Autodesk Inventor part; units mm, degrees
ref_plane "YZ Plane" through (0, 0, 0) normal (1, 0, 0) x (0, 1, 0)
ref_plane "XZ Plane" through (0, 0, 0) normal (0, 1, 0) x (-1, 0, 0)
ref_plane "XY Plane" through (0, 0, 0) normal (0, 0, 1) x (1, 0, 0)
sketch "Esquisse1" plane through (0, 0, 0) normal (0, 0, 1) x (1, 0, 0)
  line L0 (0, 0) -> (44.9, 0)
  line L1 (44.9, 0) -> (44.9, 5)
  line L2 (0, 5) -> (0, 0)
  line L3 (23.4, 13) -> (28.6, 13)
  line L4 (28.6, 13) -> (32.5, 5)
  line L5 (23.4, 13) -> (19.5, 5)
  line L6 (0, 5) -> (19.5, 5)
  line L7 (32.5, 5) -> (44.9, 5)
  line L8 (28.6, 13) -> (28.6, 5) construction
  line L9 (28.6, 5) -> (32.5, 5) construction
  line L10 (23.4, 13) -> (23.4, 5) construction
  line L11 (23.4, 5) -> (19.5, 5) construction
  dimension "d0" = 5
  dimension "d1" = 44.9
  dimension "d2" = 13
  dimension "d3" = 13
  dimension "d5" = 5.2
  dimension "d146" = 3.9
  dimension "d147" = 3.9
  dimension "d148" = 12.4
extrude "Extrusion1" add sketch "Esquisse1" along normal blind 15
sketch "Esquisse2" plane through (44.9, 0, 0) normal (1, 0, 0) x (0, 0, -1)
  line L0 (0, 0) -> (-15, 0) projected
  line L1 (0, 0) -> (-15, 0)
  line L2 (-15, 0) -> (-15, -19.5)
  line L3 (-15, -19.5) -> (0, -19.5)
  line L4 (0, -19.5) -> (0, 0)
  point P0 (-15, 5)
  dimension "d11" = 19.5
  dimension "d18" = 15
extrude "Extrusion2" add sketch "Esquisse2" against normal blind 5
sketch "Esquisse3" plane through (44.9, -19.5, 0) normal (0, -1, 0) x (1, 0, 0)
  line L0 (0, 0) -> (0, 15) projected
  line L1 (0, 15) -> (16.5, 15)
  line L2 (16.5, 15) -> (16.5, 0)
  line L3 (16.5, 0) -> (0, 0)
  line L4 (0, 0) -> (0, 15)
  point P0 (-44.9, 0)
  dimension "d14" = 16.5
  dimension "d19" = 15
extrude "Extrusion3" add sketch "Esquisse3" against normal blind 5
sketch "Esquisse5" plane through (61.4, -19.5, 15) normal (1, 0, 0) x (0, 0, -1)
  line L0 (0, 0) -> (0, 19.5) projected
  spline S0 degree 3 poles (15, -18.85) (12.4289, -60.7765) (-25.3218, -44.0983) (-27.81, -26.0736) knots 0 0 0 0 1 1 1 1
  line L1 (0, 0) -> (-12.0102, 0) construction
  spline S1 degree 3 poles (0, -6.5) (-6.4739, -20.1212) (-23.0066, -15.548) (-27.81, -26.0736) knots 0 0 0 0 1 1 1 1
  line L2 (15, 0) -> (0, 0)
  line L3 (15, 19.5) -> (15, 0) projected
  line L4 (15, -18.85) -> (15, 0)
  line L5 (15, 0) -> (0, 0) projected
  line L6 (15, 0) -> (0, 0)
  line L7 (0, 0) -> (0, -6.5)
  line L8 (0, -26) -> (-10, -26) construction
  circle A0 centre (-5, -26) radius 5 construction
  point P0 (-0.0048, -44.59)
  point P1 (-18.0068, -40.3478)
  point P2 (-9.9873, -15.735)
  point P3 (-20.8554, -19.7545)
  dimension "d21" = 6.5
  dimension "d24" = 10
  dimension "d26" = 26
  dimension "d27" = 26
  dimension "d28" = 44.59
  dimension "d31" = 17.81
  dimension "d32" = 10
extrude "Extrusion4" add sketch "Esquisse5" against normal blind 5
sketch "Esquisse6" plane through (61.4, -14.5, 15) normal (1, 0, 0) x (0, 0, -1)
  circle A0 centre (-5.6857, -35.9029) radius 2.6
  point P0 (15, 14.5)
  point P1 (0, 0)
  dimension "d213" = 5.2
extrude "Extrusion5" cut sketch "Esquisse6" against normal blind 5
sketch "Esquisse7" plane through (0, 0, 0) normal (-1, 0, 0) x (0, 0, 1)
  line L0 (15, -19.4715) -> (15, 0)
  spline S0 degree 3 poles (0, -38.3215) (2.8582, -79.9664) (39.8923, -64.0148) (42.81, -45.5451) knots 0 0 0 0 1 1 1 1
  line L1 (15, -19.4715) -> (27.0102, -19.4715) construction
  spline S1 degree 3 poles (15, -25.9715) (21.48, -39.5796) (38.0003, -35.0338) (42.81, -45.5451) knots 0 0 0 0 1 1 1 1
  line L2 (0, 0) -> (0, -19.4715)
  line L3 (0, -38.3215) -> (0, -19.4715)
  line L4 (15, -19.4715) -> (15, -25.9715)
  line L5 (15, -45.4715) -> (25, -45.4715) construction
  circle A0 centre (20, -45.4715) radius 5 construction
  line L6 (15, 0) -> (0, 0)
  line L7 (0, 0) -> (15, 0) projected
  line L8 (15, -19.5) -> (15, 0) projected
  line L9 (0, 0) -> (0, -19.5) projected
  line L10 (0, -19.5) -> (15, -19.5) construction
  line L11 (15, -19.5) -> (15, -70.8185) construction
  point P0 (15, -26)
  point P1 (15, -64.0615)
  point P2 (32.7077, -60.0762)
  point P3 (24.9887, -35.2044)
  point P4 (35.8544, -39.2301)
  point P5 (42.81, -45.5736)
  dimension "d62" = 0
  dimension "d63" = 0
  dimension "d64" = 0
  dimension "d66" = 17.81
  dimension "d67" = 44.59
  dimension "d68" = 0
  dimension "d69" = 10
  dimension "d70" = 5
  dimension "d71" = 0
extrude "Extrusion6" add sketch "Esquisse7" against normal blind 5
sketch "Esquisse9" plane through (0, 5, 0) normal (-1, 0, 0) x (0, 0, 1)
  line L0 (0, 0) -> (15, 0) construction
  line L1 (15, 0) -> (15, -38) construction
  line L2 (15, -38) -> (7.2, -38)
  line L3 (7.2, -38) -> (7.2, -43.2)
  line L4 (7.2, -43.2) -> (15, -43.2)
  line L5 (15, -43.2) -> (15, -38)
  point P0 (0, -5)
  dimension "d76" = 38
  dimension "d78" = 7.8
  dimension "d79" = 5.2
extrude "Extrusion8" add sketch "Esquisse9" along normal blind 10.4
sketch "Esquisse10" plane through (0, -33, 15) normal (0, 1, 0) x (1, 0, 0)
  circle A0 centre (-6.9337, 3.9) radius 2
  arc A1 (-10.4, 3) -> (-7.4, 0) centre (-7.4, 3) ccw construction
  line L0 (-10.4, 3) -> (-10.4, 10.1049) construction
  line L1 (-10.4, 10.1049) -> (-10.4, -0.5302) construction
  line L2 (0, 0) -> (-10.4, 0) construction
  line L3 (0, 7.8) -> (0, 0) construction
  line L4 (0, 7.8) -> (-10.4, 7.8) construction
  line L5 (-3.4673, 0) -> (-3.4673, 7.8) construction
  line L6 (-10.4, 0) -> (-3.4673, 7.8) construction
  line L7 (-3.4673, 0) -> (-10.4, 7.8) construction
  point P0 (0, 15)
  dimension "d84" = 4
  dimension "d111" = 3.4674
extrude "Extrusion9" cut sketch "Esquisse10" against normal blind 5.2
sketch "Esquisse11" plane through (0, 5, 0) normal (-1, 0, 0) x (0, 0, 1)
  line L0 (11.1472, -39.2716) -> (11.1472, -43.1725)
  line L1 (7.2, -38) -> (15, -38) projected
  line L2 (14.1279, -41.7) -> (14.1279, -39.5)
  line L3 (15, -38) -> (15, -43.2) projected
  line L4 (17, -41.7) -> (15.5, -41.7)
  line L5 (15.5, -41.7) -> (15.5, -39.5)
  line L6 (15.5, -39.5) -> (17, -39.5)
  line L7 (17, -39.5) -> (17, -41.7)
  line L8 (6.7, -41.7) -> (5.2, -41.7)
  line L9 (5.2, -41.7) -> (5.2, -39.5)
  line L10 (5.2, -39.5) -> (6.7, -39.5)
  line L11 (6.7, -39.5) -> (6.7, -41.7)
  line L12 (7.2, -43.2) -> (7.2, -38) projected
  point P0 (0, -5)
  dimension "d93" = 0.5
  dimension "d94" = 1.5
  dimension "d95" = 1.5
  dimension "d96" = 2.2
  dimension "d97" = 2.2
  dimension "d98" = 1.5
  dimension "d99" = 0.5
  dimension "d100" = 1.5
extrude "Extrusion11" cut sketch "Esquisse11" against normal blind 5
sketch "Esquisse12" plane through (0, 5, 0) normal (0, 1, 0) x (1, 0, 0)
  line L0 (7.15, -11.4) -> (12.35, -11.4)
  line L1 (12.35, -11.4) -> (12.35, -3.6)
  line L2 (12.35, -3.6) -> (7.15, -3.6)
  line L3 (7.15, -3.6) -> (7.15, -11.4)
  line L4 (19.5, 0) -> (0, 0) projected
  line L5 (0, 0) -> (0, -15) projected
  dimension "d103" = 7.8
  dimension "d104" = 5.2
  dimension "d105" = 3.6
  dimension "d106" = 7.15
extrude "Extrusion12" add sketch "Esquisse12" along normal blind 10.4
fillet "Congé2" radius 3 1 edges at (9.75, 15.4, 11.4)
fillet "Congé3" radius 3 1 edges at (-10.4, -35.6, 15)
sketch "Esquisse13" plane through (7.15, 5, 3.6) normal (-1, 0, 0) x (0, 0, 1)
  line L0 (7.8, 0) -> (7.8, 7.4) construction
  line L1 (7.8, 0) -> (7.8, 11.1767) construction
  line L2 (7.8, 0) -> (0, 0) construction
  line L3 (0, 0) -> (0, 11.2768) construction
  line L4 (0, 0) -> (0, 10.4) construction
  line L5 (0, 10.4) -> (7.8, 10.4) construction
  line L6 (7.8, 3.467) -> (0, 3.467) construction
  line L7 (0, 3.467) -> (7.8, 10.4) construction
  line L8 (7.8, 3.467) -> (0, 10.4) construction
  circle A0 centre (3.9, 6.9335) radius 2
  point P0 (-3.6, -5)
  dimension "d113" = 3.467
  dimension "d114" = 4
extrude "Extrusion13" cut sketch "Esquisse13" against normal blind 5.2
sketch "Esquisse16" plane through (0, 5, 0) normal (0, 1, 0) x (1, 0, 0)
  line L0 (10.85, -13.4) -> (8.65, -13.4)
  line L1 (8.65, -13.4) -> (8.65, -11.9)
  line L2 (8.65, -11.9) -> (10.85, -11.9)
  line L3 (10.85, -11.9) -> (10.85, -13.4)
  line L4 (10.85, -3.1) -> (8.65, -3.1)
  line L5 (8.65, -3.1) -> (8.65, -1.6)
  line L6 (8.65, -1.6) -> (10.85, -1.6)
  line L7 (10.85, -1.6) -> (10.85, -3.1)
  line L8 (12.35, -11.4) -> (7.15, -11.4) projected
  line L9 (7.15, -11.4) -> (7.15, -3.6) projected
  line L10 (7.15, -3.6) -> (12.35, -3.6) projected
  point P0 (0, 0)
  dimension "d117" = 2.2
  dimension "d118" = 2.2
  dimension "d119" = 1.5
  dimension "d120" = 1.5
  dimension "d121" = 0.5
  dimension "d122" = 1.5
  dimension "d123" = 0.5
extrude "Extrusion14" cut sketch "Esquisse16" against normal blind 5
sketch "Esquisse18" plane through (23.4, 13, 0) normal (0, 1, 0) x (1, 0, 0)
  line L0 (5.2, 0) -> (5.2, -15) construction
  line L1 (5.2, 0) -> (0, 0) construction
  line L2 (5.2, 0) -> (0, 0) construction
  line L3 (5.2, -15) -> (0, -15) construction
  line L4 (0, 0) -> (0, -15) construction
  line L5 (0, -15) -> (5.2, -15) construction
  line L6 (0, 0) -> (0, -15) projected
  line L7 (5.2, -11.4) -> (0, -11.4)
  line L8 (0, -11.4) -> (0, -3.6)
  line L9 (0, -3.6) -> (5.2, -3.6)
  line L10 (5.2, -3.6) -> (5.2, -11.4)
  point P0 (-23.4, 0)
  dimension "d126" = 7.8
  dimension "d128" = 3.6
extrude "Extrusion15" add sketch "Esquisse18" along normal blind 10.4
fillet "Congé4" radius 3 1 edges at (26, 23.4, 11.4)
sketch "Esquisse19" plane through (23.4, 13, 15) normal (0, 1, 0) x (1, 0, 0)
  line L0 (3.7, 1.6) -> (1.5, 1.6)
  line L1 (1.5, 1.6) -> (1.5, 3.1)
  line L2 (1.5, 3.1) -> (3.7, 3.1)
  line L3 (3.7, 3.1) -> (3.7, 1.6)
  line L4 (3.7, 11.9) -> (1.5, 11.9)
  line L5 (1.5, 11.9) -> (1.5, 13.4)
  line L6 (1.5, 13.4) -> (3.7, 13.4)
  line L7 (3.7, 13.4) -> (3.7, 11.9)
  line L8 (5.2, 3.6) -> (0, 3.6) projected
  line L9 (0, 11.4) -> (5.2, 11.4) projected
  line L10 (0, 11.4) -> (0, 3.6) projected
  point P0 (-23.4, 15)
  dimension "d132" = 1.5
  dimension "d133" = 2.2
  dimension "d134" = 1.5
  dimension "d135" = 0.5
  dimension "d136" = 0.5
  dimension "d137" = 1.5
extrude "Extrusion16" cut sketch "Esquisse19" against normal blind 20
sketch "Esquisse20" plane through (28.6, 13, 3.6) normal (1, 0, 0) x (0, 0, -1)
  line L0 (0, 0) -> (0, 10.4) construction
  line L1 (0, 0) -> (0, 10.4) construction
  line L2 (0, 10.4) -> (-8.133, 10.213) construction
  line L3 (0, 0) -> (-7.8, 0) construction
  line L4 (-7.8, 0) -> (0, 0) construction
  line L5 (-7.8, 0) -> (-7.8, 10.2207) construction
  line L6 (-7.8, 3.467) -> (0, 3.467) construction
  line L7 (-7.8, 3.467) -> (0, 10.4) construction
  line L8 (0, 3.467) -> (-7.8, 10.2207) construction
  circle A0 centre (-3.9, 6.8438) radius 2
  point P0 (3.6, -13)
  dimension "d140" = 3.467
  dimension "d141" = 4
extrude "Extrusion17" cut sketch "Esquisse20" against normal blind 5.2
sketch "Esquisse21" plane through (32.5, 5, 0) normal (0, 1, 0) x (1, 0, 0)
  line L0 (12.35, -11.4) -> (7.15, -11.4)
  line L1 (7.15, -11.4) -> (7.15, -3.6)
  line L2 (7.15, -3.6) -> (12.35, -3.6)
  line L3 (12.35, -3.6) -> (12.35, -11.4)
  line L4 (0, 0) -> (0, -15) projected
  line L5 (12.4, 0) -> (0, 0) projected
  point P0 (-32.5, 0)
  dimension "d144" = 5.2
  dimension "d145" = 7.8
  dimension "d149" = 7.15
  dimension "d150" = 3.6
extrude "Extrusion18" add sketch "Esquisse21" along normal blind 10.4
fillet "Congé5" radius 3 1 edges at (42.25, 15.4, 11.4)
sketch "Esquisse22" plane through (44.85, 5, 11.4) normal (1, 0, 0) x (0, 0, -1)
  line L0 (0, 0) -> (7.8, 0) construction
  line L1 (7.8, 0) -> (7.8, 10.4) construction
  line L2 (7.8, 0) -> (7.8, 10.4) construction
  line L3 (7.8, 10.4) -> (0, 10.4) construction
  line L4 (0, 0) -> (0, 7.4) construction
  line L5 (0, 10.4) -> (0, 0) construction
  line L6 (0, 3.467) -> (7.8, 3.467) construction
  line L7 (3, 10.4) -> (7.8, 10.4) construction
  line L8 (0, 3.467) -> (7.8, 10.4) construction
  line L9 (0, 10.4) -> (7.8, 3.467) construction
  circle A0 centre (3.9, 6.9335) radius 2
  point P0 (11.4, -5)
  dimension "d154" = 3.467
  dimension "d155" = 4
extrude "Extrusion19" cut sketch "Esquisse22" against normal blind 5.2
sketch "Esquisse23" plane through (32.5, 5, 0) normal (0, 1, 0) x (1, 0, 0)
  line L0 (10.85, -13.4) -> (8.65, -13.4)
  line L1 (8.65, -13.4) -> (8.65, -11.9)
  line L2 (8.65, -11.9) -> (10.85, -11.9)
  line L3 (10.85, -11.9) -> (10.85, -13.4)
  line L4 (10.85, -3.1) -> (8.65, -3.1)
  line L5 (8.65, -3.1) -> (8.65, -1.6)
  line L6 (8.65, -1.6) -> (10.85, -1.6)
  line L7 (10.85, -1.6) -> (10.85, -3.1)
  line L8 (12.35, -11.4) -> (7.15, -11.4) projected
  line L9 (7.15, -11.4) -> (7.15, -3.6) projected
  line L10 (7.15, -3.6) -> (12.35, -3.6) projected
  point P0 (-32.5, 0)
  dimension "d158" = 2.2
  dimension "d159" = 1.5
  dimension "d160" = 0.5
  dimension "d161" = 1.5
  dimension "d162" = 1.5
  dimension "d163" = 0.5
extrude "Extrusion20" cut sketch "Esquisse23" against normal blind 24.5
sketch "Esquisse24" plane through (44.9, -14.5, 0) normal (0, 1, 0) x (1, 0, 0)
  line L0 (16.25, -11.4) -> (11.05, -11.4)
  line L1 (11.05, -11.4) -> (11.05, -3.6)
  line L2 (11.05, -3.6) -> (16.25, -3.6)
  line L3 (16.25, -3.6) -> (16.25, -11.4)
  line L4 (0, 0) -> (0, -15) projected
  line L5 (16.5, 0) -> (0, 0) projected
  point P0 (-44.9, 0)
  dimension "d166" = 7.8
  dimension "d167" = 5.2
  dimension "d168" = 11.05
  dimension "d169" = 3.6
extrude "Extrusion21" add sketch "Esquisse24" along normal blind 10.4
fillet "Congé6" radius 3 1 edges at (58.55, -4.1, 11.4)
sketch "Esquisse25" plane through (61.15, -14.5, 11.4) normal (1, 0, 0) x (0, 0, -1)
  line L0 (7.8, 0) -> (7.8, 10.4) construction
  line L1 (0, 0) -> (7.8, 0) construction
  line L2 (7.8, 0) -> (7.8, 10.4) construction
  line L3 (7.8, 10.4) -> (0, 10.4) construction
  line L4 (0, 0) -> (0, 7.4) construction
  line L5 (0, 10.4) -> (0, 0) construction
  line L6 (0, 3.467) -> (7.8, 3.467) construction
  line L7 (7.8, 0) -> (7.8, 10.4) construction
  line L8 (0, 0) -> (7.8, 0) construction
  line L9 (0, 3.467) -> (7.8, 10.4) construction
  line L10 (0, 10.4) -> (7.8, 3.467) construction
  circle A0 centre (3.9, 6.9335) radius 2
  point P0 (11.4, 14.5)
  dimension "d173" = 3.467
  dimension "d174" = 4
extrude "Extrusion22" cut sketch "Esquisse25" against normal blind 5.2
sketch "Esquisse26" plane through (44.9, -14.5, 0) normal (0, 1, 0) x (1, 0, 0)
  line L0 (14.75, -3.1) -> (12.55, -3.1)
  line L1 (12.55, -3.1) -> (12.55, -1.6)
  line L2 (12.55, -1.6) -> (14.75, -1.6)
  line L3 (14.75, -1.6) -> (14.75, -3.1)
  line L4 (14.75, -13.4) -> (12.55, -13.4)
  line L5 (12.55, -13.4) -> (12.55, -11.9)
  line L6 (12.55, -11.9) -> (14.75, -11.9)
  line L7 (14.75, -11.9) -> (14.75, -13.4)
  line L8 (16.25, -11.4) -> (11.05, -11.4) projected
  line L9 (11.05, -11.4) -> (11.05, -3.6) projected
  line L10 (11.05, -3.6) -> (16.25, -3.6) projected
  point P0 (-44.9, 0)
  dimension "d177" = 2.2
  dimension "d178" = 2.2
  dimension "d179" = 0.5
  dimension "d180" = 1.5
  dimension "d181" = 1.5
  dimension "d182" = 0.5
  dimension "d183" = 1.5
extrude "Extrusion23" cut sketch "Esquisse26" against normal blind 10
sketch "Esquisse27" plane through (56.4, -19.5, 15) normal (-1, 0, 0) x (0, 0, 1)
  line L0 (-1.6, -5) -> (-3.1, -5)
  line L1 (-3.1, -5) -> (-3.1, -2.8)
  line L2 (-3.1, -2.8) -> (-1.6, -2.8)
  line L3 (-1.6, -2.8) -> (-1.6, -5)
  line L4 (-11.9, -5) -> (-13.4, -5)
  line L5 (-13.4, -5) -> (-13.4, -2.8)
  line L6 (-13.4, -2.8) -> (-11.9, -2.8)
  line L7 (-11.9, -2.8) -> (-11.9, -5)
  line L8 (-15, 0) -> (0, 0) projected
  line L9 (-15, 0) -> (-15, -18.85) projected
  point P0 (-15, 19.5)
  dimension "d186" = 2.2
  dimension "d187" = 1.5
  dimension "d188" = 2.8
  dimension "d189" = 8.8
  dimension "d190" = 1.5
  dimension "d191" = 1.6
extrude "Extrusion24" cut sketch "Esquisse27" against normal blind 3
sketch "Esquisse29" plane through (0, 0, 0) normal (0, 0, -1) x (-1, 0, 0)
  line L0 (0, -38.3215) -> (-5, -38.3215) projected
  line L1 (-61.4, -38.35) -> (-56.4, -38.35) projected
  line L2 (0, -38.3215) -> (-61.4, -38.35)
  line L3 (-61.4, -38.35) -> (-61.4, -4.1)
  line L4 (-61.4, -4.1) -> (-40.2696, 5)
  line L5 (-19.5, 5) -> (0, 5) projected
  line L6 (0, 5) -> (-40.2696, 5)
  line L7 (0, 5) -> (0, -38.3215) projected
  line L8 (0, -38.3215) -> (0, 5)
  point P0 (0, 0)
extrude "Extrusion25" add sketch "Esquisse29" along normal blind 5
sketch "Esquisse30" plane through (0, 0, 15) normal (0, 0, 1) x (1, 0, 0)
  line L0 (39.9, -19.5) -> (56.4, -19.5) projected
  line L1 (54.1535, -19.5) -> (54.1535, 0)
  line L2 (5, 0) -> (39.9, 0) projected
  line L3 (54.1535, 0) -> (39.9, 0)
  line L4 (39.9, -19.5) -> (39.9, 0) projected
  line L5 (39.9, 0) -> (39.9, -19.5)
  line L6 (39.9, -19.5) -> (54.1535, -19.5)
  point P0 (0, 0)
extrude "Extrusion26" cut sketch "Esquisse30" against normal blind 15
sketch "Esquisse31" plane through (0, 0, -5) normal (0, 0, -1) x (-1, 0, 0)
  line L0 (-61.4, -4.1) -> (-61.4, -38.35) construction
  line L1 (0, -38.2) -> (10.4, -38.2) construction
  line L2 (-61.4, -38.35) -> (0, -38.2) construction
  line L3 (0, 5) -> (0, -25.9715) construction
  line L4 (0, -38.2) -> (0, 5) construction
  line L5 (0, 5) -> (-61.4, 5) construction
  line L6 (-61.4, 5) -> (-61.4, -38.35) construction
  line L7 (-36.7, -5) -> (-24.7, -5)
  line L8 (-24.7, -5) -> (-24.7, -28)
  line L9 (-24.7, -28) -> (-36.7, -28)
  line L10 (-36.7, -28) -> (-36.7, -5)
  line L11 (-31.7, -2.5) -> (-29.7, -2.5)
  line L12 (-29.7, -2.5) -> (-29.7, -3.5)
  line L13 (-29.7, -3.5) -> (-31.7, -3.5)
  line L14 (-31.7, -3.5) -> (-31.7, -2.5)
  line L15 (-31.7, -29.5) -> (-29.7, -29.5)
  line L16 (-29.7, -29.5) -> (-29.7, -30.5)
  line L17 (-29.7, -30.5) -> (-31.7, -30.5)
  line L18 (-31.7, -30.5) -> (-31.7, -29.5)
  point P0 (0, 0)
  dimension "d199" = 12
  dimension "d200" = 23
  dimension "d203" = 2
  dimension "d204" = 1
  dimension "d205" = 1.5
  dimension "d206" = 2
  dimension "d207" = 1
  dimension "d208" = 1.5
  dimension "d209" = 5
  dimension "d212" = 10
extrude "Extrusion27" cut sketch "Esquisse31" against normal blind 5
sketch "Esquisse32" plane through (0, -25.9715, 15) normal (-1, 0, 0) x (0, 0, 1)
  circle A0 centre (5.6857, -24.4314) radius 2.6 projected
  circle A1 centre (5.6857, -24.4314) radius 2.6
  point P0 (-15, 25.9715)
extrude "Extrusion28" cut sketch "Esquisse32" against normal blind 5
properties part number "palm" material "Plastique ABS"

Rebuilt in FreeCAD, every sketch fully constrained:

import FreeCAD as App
import Part
import Sketcher
Q = App.Units.Quantity


def edges_at(feature, points):
    """Names of the edges that pass closest to the given points."""
    edges = feature.Shape.Edges
    near = lambda p: min(range(len(edges)), key=lambda i: edges[i].distToShape(Part.Vertex(*p))[0])
    return sorted({f"Edge{near(p) + 1}" for p in points})


def add_polygon(sketch, points):
    """Adds a closed chain of lines whose ends are joined by coincident constraints."""
    first, n = sketch.GeometryCount, len(points)
    for a, b in zip(points, points[1:] + points[:1]):
        sketch.addGeometry(Part.LineSegment(App.Vector(*a, 0), App.Vector(*b, 0)), False)
    for i in range(n):
        sketch.addConstraint(Sketcher.Constraint("Coincident", first + i, 2, first + (i + 1) % n, 1))

doc = App.newDocument("Part")
body = doc.addObject("PartDesign::Body", "Body")

# Sketch on XY plane
sketch1 = doc.addObject("Sketcher::SketchObject", "Sketch")
body.addObject(sketch1)
sketch1.AttachmentSupport = (doc.XY_Plane, [""])
sketch1.MapMode = "FlatFace"
add_polygon(sketch1, [(0, 5), (0, 0), (44.9, 0), (44.9, 5), (32.5, 5), (28.6, 13), (23.4, 13), (19.5, 5)])  # lines 0-7
sketch1.addConstraint([
    Sketcher.Constraint("Vertical", 0),
    Sketcher.Constraint("Horizontal", 1),
    Sketcher.Constraint("Vertical", 2),
    Sketcher.Constraint("Horizontal", 3),
    Sketcher.Constraint("Horizontal", 5),
    Sketcher.Constraint("Horizontal", 7),
    Sketcher.Constraint("Coincident", 0, 2, -1, 1),
    Sketcher.Constraint("Horizontal", 3, 2, 6, 2),
    Sketcher.Constraint("Equal", 4, 6),
    Sketcher.Constraint("DistanceY", 0, 2, 0, 1, 5.0),
    Sketcher.Constraint("DistanceX", 1, 1, 1, 2, 44.9),
    Sketcher.Constraint("DistanceX", 3, 2, 3, 1, 12.4),
    Sketcher.Constraint("DistanceX", 5, 2, 5, 1, 5.2),
    Sketcher.Constraint("DistanceY", -1, 1, 4, 2, 13.0),
    Sketcher.Constraint("DistanceX", 6, 2, 3, 2, 13.0),
])
pad1 = doc.addObject("PartDesign::Pad", "Pad")
body.addObject(pad1)
pad1.Profile = sketch1
pad1.Length = 15

# Sketch on YZ plane
sketch2 = doc.addObject("Sketcher::SketchObject", "Sketch001")
body.addObject(sketch2)
sketch2.AttachmentSupport = (doc.YZ_Plane, [""])
sketch2.MapMode = "FlatFace"
sketch2.AttachmentOffset = App.Placement(App.Vector(0, 0, 44.9), App.Rotation())
add_polygon(sketch2, [(-19.5, 0), (0, 0), (0, 15), (-19.5, 15)])  # lines 0-3
sketch2.addConstraint([
    Sketcher.Constraint("Horizontal", 0),
    Sketcher.Constraint("Vertical", 1),
    Sketcher.Constraint("Horizontal", 2),
    Sketcher.Constraint("Vertical", 3),
    Sketcher.Constraint("Coincident", 0, 2, -1, 1),
    Sketcher.Constraint("DistanceY", 1, 1, 1, 2, 15.0),
    Sketcher.Constraint("DistanceX", 0, 1, 0, 2, 19.5),
])
pad2 = doc.addObject("PartDesign::Pad", "Pad001")
body.addObject(pad2)
pad2.Profile = sketch2
pad2.Length = 5
pad2.Reversed = True

# Sketch on XZ plane
sketch3 = doc.addObject("Sketcher::SketchObject", "Sketch002")
body.addObject(sketch3)
sketch3.AttachmentSupport = (doc.XZ_Plane, [""])
sketch3.MapMode = "FlatFace"
sketch3.AttachmentOffset = App.Placement(App.Vector(0, 0, 19.5), App.Rotation())
add_polygon(sketch3, [(44.9, 15), (44.9, 0), (61.4, 0), (61.4, 15)])  # lines 0-3
sketch3.addConstraint([
    Sketcher.Constraint("Vertical", 0),
    Sketcher.Constraint("Horizontal", 1),
    Sketcher.Constraint("Vertical", 2),
    Sketcher.Constraint("Horizontal", 3),
    Sketcher.Constraint("PointOnObject", 0, 2, -1),
    Sketcher.Constraint("DistanceY", 0, 2, 0, 1, 15.0),
    Sketcher.Constraint("DistanceX", 1, 1, 1, 2, 16.5),
    Sketcher.Constraint("DistanceX", -1, 1, 0, 2, 44.9),
])
pad3 = doc.addObject("PartDesign::Pad", "Pad002")
body.addObject(pad3)
pad3.Profile = sketch3
pad3.Length = 5
pad3.Reversed = True

# Sketch on YZ plane
sketch4 = doc.addObject("Sketcher::SketchObject", "Sketch003")
body.addObject(sketch4)
sketch4.AttachmentSupport = (doc.YZ_Plane, [""])
sketch4.MapMode = "FlatFace"
sketch4.AttachmentOffset = App.Placement(App.Vector(0, 0, 61.4), App.Rotation())
sketch4.addGeometry([
    Part.BSplineCurve([App.Vector(-38.35, 0, 0), App.Vector(-80.2765, 2.5711, 0), App.Vector(-63.5983, 40.3218, 0), App.Vector(-45.5736, 42.81, 0)], [4, 4], [0, 1], False, 3, [1, 1, 1, 1], False),  # 0
    Part.LineSegment(App.Vector(-38.35, 0, 0), App.Vector(-19.5, 0, 0)),  # 1
    Part.LineSegment(App.Vector(-19.5, 0, 0), App.Vector(-19.5, 15, 0)),  # 2
    Part.LineSegment(App.Vector(-19.5, 15, 0), App.Vector(-26, 15, 0)),  # 3
    Part.BSplineCurve([App.Vector(-26, 15, 0), App.Vector(-39.6212, 21.4739, 0), App.Vector(-35.048, 38.0066, 0), App.Vector(-45.5736, 42.81, 0)], [4, 4], [0, 1], False, 3, [1, 1, 1, 1], False),  # 4
], False)
sketch4.addConstraint([
    Sketcher.Constraint("Block", 0),
    Sketcher.Constraint("Block", 4),
    Sketcher.Constraint("Coincident", 0, 1, 1, 1),
    Sketcher.Constraint("Coincident", 1, 2, 2, 1),
    Sketcher.Constraint("Coincident", 2, 2, 3, 1),
    Sketcher.Constraint("Coincident", 3, 2, 4, 1),
    Sketcher.Constraint("Horizontal", 1),
    Sketcher.Constraint("Vertical", 2),
    Sketcher.Constraint("Horizontal", 3),
    Sketcher.Constraint("DistanceX", 3, 2, 3, 1, 6.5),
])
pad4 = doc.addObject("PartDesign::Pad", "Pad003")
body.addObject(pad4)
pad4.Profile = sketch4
pad4.Length = 5
pad4.Reversed = True

# Sketch on YZ plane
sketch5 = doc.addObject("Sketcher::SketchObject", "Sketch004")
body.addObject(sketch5)
sketch5.AttachmentSupport = (doc.YZ_Plane, [""])
sketch5.MapMode = "FlatFace"
sketch5.AttachmentOffset = App.Placement(App.Vector(0, 0, 61.4), App.Rotation())
sketch5.addGeometry(Part.Circle(App.Vector(-50.4029, 20.6857, 0), App.Vector(0, 0, 1), 2.6), False)
sketch5.addConstraint([
    Sketcher.Constraint("Diameter", 0, 5.2),
    Sketcher.Constraint("DistanceX", 0, 3, -1, 1, 50.403),
    Sketcher.Constraint("DistanceY", -1, 1, 0, 3, 20.6857),
])
pocket1 = doc.addObject("PartDesign::Pocket", "Pocket")
body.addObject(pocket1)
pocket1.Profile = sketch5
pocket1.Length = 5

# Sketch on YZ plane
sketch6 = doc.addObject("Sketcher::SketchObject", "Sketch005")
body.addObject(sketch6)
sketch6.AttachmentSupport = (doc.YZ_Plane, [""])
sketch6.MapMode = "FlatFace"
sketch6.addGeometry([
    Part.LineSegment(App.Vector(-25.9715, 15, 0), App.Vector(0, 15, 0)),  # 0
    Part.LineSegment(App.Vector(0, 15, 0), App.Vector(0, 0, 0)),  # 1
    Part.LineSegment(App.Vector(0, 0, 0), App.Vector(-38.3215, 0, 0)),  # 2
    Part.BSplineCurve([App.Vector(-38.3215, 0, 0), App.Vector(-79.9664, 2.8582, 0), App.Vector(-64.0148, 39.8923, 0), App.Vector(-45.5451, 42.81, 0)], [4, 4], [0, 1], False, 3, [1, 1, 1, 1], False),  # 3
    Part.BSplineCurve([App.Vector(-25.9715, 15, 0), App.Vector(-39.5796, 21.48, 0), App.Vector(-35.0338, 38.0003, 0), App.Vector(-45.5451, 42.81, 0)], [4, 4], [0, 1], False, 3, [1, 1, 1, 1], False),  # 4
], False)
sketch6.addConstraint([
    Sketcher.Constraint("Block", 3),
    Sketcher.Constraint("Block", 4),
    Sketcher.Constraint("Coincident", 0, 2, 1, 1),
    Sketcher.Constraint("Coincident", 1, 2, 2, 1),
    Sketcher.Constraint("Coincident", 2, 2, 3, 1),
    Sketcher.Constraint("Coincident", 4, 1, 0, 1),
    Sketcher.Constraint("Horizontal", 0),
    Sketcher.Constraint("Vertical", 1),
    Sketcher.Constraint("Horizontal", 2),
    Sketcher.Constraint("PointOnObject", 0, 2, -2),
])
pad5 = doc.addObject("PartDesign::Pad", "Pad004")
body.addObject(pad5)
pad5.Profile = sketch6
pad5.Length = 5

# Sketch on YZ plane
sketch7 = doc.addObject("Sketcher::SketchObject", "Sketch006")
body.addObject(sketch7)
sketch7.AttachmentSupport = (doc.YZ_Plane, [""])
sketch7.MapMode = "FlatFace"
add_polygon(sketch7, [(-38.2, 15), (-33, 15), (-33, 7.2), (-38.2, 7.2)])  # lines 0-3
sketch7.addConstraint([
    Sketcher.Constraint("Horizontal", 0),
    Sketcher.Constraint("Vertical", 1),
    Sketcher.Constraint("Horizontal", 2),
    Sketcher.Constraint("Vertical", 3),
    Sketcher.Constraint("DistanceX", 0, 1, 0, 2, 5.2),
    Sketcher.Constraint("DistanceY", 1, 2, 1, 1, 7.8),
    Sketcher.Constraint("DistanceX", 0, 2, -1, 1, 33.0),
    Sketcher.Constraint("DistanceY", -1, 1, 0, 2, 15.0),
])
pad6 = doc.addObject("PartDesign::Pad", "Pad005")
body.addObject(pad6)
pad6.Profile = sketch7
pad6.Length = 10.4
pad6.Reversed = True

# Sketch on XZ plane
sketch8 = doc.addObject("Sketcher::SketchObject", "Sketch007")
body.addObject(sketch8)
sketch8.AttachmentSupport = (doc.XZ_Plane, [""])
sketch8.MapMode = "FlatFace"
sketch8.AttachmentOffset = App.Placement(App.Vector(0, 0, 33), App.Rotation())
sketch8.addGeometry(Part.Circle(App.Vector(-6.9337, 11.1, 0), App.Vector(0, 0, 1), 2), False)
sketch8.addConstraint([
    Sketcher.Constraint("Diameter", 0, 4.0),
    Sketcher.Constraint("DistanceY", -1, 1, 0, 3, 11.1),
    Sketcher.Constraint("DistanceX", 0, 3, -1, 1, 6.9337),
])
pocket2 = doc.addObject("PartDesign::Pocket", "Pocket001")
body.addObject(pocket2)
pocket2.Profile = sketch8
pocket2.Length = 5.2
pocket2.Reversed = True

# Sketch on YZ plane
sketch9 = doc.addObject("Sketcher::SketchObject", "Sketch008")
body.addObject(sketch9)
sketch9.AttachmentSupport = (doc.YZ_Plane, [""])
sketch9.MapMode = "FlatFace"
add_polygon(sketch9, [(-36.7, 15.5), (-36.7, 17), (-34.5, 17), (-34.5, 15.5)])  # lines 0-3
add_polygon(sketch9, [(-36.7, 5.2), (-36.7, 6.7), (-34.5, 6.7), (-34.5, 5.2)])  # lines 4-7
sketch9.addConstraint([
    Sketcher.Constraint("Vertical", 0),
    Sketcher.Constraint("Horizontal", 1),
    Sketcher.Constraint("Vertical", 2),
    Sketcher.Constraint("Horizontal", 3),
    Sketcher.Constraint("Vertical", 4),
    Sketcher.Constraint("Horizontal", 5),
    Sketcher.Constraint("Vertical", 6),
    Sketcher.Constraint("Horizontal", 7),
    Sketcher.Constraint("Vertical", 3, 2, 4, 2),
    Sketcher.Constraint("Vertical", 2, 2, 5, 2),
    Sketcher.Constraint("Equal", 2, 4),
    Sketcher.Constraint("DistanceX", 1, 1, 1, 2, 2.2),
    Sketcher.Constraint("DistanceY", 0, 1, 0, 2, 1.5),
    Sketcher.Constraint("DistanceY", -1, 1, 0, 2, 17.0),
    Sketcher.Constraint("DistanceX", 0, 2, -1, 1, 36.7),
    Sketcher.Constraint("DistanceY", -1, 1, 4, 2, 6.7),
])
pocket3 = doc.addObject("PartDesign::Pocket", "Pocket002")
body.addObject(pocket3)
pocket3.Profile = sketch9
pocket3.Length = 5
pocket3.Reversed = True

# Sketch on XZ plane
sketch10 = doc.addObject("Sketcher::SketchObject", "Sketch009")
body.addObject(sketch10)
sketch10.AttachmentSupport = (doc.XZ_Plane, [""])
sketch10.MapMode = "FlatFace"
sketch10.AttachmentOffset = App.Placement(App.Vector(0, 0, -5), App.Rotation())
add_polygon(sketch10, [(7.15, 3.6), (7.15, 11.4), (12.35, 11.4), (12.35, 3.6)])  # lines 0-3
sketch10.addConstraint([
    Sketcher.Constraint("Vertical", 0),
    Sketcher.Constraint("Horizontal", 1),
    Sketcher.Constraint("Vertical", 2),
    Sketcher.Constraint("Horizontal", 3),
    Sketcher.Constraint("DistanceX", 1, 1, 1, 2, 5.2),
    Sketcher.Constraint("DistanceY", 0, 1, 0, 2, 7.8),
    Sketcher.Constraint("DistanceY", -1, 1, 2, 2, 3.6),
    Sketcher.Constraint("DistanceX", -1, 1, 0, 2, 7.15),
])
pad7 = doc.addObject("PartDesign::Pad", "Pad006")
body.addObject(pad7)
pad7.Profile = sketch10
pad7.Length = 10.4
pad7.Reversed = True
doc.recompute()

fillet = doc.addObject("PartDesign::Fillet", "Fillet")
body.addObject(fillet)
fillet.Base = (pad7, edges_at(pad7, [(9.75, 15.4, 11.4)]))
fillet.Radius = 3
doc.recompute()

fillet2 = doc.addObject("PartDesign::Fillet", "Fillet001")
body.addObject(fillet2)
fillet2.Base = (fillet, edges_at(fillet, [(-10.4, -35.6, 15)]))
fillet2.Radius = 3

# Sketch on YZ plane
sketch11 = doc.addObject("Sketcher::SketchObject", "Sketch010")
body.addObject(sketch11)
sketch11.AttachmentSupport = (doc.YZ_Plane, [""])
sketch11.MapMode = "FlatFace"
sketch11.AttachmentOffset = App.Placement(App.Vector(0, 0, 7.15), App.Rotation())
sketch11.addGeometry(Part.Circle(App.Vector(11.9335, 7.5, 0), App.Vector(0, 0, 1), 2), False)
sketch11.addConstraint([
    Sketcher.Constraint("Diameter", 0, 4.0),
    Sketcher.Constraint("DistanceY", -1, 1, 0, 3, 7.5),
    Sketcher.Constraint("DistanceX", -1, 1, 0, 3, 11.9335),
])
pocket4 = doc.addObject("PartDesign::Pocket", "Pocket003")
body.addObject(pocket4)
pocket4.Profile = sketch11
pocket4.Length = 5.2
pocket4.Reversed = True

# Sketch on XZ plane
sketch12 = doc.addObject("Sketcher::SketchObject", "Sketch011")
body.addObject(sketch12)
sketch12.AttachmentSupport = (doc.XZ_Plane, [""])
sketch12.MapMode = "FlatFace"
sketch12.AttachmentOffset = App.Placement(App.Vector(0, 0, -5), App.Rotation())
add_polygon(sketch12, [(8.65, 13.4), (10.85, 13.4), (10.85, 11.9), (8.65, 11.9)])  # lines 0-3
add_polygon(sketch12, [(8.65, 3.1), (10.85, 3.1), (10.85, 1.6), (8.65, 1.6)])  # lines 4-7
sketch12.addConstraint([
    Sketcher.Constraint("Horizontal", 0),
    Sketcher.Constraint("Vertical", 1),
    Sketcher.Constraint("Horizontal", 2),
    Sketcher.Constraint("Vertical", 3),
    Sketcher.Constraint("Horizontal", 4),
    Sketcher.Constraint("Vertical", 5),
    Sketcher.Constraint("Horizontal", 6),
    Sketcher.Constraint("Vertical", 7),
    Sketcher.Constraint("Vertical", 1, 2, 4, 2),
    Sketcher.Constraint("Vertical", 3, 2, 6, 2),
    Sketcher.Constraint("Equal", 3, 5),
    Sketcher.Constraint("DistanceX", 0, 1, 0, 2, 2.2),
    Sketcher.Constraint("DistanceY", 1, 2, 1, 1, 1.5),
    Sketcher.Constraint("DistanceY", -1, 1, 0, 2, 13.4),
    Sketcher.Constraint("DistanceY", -1, 1, 4, 2, 3.1),
    Sketcher.Constraint("DistanceX", -1, 1, 0, 2, 10.85),
])
pocket5 = doc.addObject("PartDesign::Pocket", "Pocket004")
body.addObject(pocket5)
pocket5.Profile = sketch12
pocket5.Length = 5
pocket5.Reversed = True

# Sketch on XZ plane
sketch13 = doc.addObject("Sketcher::SketchObject", "Sketch012")
body.addObject(sketch13)
sketch13.AttachmentSupport = (doc.XZ_Plane, [""])
sketch13.MapMode = "FlatFace"
sketch13.AttachmentOffset = App.Placement(App.Vector(0, 0, -13), App.Rotation())
add_polygon(sketch13, [(28.6, 3.6), (23.4, 3.6), (23.4, 11.4), (28.6, 11.4)])  # lines 0-3
sketch13.addConstraint([
    Sketcher.Constraint("Horizontal", 0),
    Sketcher.Constraint("Vertical", 1),
    Sketcher.Constraint("Horizontal", 2),
    Sketcher.Constraint("Vertical", 3),
    Sketcher.Constraint("DistanceY", 1, 1, 1, 2, 7.8),
    Sketcher.Constraint("DistanceY", -1, 1, 0, 2, 3.6),
    Sketcher.Constraint("DistanceX", 0, 2, 0, 1, 5.2),
    Sketcher.Constraint("DistanceX", -1, 1, 0, 2, 23.4),
])
pad8 = doc.addObject("PartDesign::Pad", "Pad007")
body.addObject(pad8)
pad8.Profile = sketch13
pad8.Length = 10.4
pad8.Reversed = True
doc.recompute()

fillet3 = doc.addObject("PartDesign::Fillet", "Fillet002")
body.addObject(fillet3)
fillet3.Base = (pad8, edges_at(pad8, [(26, 23.4, 11.4)]))
fillet3.Radius = 3

# Sketch on XZ plane
sketch14 = doc.addObject("Sketcher::SketchObject", "Sketch013")
body.addObject(sketch14)
sketch14.AttachmentSupport = (doc.XZ_Plane, [""])
sketch14.MapMode = "FlatFace"
sketch14.AttachmentOffset = App.Placement(App.Vector(0, 0, -13), App.Rotation())
add_polygon(sketch14, [(24.9, 13.4), (27.1, 13.4), (27.1, 11.9), (24.9, 11.9)])  # lines 0-3
add_polygon(sketch14, [(24.9, 3.1), (27.1, 3.1), (27.1, 1.6), (24.9, 1.6)])  # lines 4-7
sketch14.addConstraint([
    Sketcher.Constraint("Horizontal", 0),
    Sketcher.Constraint("Vertical", 1),
    Sketcher.Constraint("Horizontal", 2),
    Sketcher.Constraint("Vertical", 3),
    Sketcher.Constraint("Horizontal", 4),
    Sketcher.Constraint("Vertical", 5),
    Sketcher.Constraint("Horizontal", 6),
    Sketcher.Constraint("Vertical", 7),
    Sketcher.Constraint("Vertical", 1, 2, 4, 2),
    Sketcher.Constraint("Vertical", 3, 2, 6, 2),
    Sketcher.Constraint("Equal", 3, 5),
    Sketcher.Constraint("DistanceX", 0, 1, 0, 2, 2.2),
    Sketcher.Constraint("DistanceY", 1, 2, 1, 1, 1.5),
    Sketcher.Constraint("DistanceX", -1, 1, 0, 2, 27.1),
    Sketcher.Constraint("DistanceY", -1, 1, 0, 2, 13.4),
    Sketcher.Constraint("DistanceY", -1, 1, 4, 2, 3.1),
])
pocket6 = doc.addObject("PartDesign::Pocket", "Pocket005")
body.addObject(pocket6)
pocket6.Profile = sketch14
pocket6.Length = 20
pocket6.Reversed = True

# Sketch on YZ plane
sketch15 = doc.addObject("Sketcher::SketchObject", "Sketch014")
body.addObject(sketch15)
sketch15.AttachmentSupport = (doc.YZ_Plane, [""])
sketch15.MapMode = "FlatFace"
sketch15.AttachmentOffset = App.Placement(App.Vector(0, 0, 28.6), App.Rotation())
sketch15.addGeometry(Part.Circle(App.Vector(19.8438, 7.5, 0), App.Vector(0, 0, 1), 2), False)
sketch15.addConstraint([
    Sketcher.Constraint("Diameter", 0, 4.0),
    Sketcher.Constraint("DistanceY", -1, 1, 0, 3, 7.5),
    Sketcher.Constraint("DistanceX", -1, 1, 0, 3, 19.8438),
])
pocket7 = doc.addObject("PartDesign::Pocket", "Pocket006")
body.addObject(pocket7)
pocket7.Profile = sketch15
pocket7.Length = 5.2

# Sketch on XZ plane
sketch16 = doc.addObject("Sketcher::SketchObject", "Sketch015")
body.addObject(sketch16)
sketch16.AttachmentSupport = (doc.XZ_Plane, [""])
sketch16.MapMode = "FlatFace"
sketch16.AttachmentOffset = App.Placement(App.Vector(0, 0, -5), App.Rotation())
add_polygon(sketch16, [(39.65, 11.4), (44.85, 11.4), (44.85, 3.6), (39.65, 3.6)])  # lines 0-3
sketch16.addConstraint([
    Sketcher.Constraint("Horizontal", 0),
    Sketcher.Constraint("Vertical", 1),
    Sketcher.Constraint("Horizontal", 2),
    Sketcher.Constraint("Vertical", 3),
    Sketcher.Constraint("DistanceX", 0, 1, 0, 2, 5.2),
    Sketcher.Constraint("DistanceY", 1, 2, 1, 1, 7.8),
    Sketcher.Constraint("DistanceY", -1, 1, 1, 2, 3.6),
    Sketcher.Constraint("DistanceX", -1, 1, 0, 2, 44.85),
])
pad9 = doc.addObject("PartDesign::Pad", "Pad008")
body.addObject(pad9)
pad9.Profile = sketch16
pad9.Length = 10.4
pad9.Reversed = True
doc.recompute()

fillet4 = doc.addObject("PartDesign::Fillet", "Fillet003")
body.addObject(fillet4)
fillet4.Base = (pad9, edges_at(pad9, [(42.25, 15.4, 11.4)]))
fillet4.Radius = 3

# Sketch on YZ plane
sketch17 = doc.addObject("Sketcher::SketchObject", "Sketch016")
body.addObject(sketch17)
sketch17.AttachmentSupport = (doc.YZ_Plane, [""])
sketch17.MapMode = "FlatFace"
sketch17.AttachmentOffset = App.Placement(App.Vector(0, 0, 44.85), App.Rotation())
sketch17.addGeometry(Part.Circle(App.Vector(11.9335, 7.5, 0), App.Vector(0, 0, 1), 2), False)
sketch17.addConstraint([
    Sketcher.Constraint("Diameter", 0, 4.0),
    Sketcher.Constraint("DistanceY", -1, 1, 0, 3, 7.5),
    Sketcher.Constraint("DistanceX", -1, 1, 0, 3, 11.9335),
])
pocket8 = doc.addObject("PartDesign::Pocket", "Pocket007")
body.addObject(pocket8)
pocket8.Profile = sketch17
pocket8.Length = 5.2

# Sketch on XZ plane
sketch18 = doc.addObject("Sketcher::SketchObject", "Sketch017")
body.addObject(sketch18)
sketch18.AttachmentSupport = (doc.XZ_Plane, [""])
sketch18.MapMode = "FlatFace"
sketch18.AttachmentOffset = App.Placement(App.Vector(0, 0, -5), App.Rotation())
add_polygon(sketch18, [(41.15, 13.4), (43.35, 13.4), (43.35, 11.9), (41.15, 11.9)])  # lines 0-3
add_polygon(sketch18, [(41.15, 3.1), (43.35, 3.1), (43.35, 1.6), (41.15, 1.6)])  # lines 4-7
sketch18.addConstraint([
    Sketcher.Constraint("Horizontal", 0),
    Sketcher.Constraint("Vertical", 1),
    Sketcher.Constraint("Horizontal", 2),
    Sketcher.Constraint("Vertical", 3),
    Sketcher.Constraint("Horizontal", 4),
    Sketcher.Constraint("Vertical", 5),
    Sketcher.Constraint("Horizontal", 6),
    Sketcher.Constraint("Vertical", 7),
    Sketcher.Constraint("Vertical", 1, 2, 4, 2),
    Sketcher.Constraint("Vertical", 3, 2, 6, 2),
    Sketcher.Constraint("Equal", 3, 5),
    Sketcher.Constraint("DistanceX", 0, 1, 0, 2, 2.2),
    Sketcher.Constraint("DistanceY", 1, 2, 1, 1, 1.5),
    Sketcher.Constraint("DistanceY", -1, 1, 0, 2, 13.4),
    Sketcher.Constraint("DistanceY", -1, 1, 4, 2, 3.1),
    Sketcher.Constraint("DistanceX", -1, 1, 0, 2, 43.35),
])
pocket9 = doc.addObject("PartDesign::Pocket", "Pocket008")
body.addObject(pocket9)
pocket9.Profile = sketch18
pocket9.Length = 24.5
pocket9.Reversed = True

# Sketch on XZ plane
sketch19 = doc.addObject("Sketcher::SketchObject", "Sketch018")
body.addObject(sketch19)
sketch19.AttachmentSupport = (doc.XZ_Plane, [""])
sketch19.MapMode = "FlatFace"
sketch19.AttachmentOffset = App.Placement(App.Vector(0, 0, 14.5), App.Rotation())
add_polygon(sketch19, [(55.95, 11.4), (61.15, 11.4), (61.15, 3.6), (55.95, 3.6)])  # lines 0-3
sketch19.addConstraint([
    Sketcher.Constraint("Horizontal", 0),
    Sketcher.Constraint("Vertical", 1),
    Sketcher.Constraint("Horizontal", 2),
    Sketcher.Constraint("Vertical", 3),
    Sketcher.Constraint("DistanceX", 0, 1, 0, 2, 5.2),
    Sketcher.Constraint("DistanceY", 1, 2, 1, 1, 7.8),
    Sketcher.Constraint("DistanceY", -1, 1, 1, 2, 3.6),
    Sketcher.Constraint("DistanceX", -1, 1, 0, 2, 61.15),
])
pad10 = doc.addObject("PartDesign::Pad", "Pad009")
body.addObject(pad10)
pad10.Profile = sketch19
pad10.Length = 10.4
pad10.Reversed = True
doc.recompute()

fillet5 = doc.addObject("PartDesign::Fillet", "Fillet004")
body.addObject(fillet5)
fillet5.Base = (pad10, edges_at(pad10, [(58.55, -4.1, 11.4)]))
fillet5.Radius = 3

# Sketch on YZ plane
sketch20 = doc.addObject("Sketcher::SketchObject", "Sketch019")
body.addObject(sketch20)
sketch20.AttachmentSupport = (doc.YZ_Plane, [""])
sketch20.MapMode = "FlatFace"
sketch20.AttachmentOffset = App.Placement(App.Vector(0, 0, 61.15), App.Rotation())
sketch20.addGeometry(Part.Circle(App.Vector(-7.5665, 7.5, 0), App.Vector(0, 0, 1), 2), False)
sketch20.addConstraint([
    Sketcher.Constraint("Diameter", 0, 4.0),
    Sketcher.Constraint("DistanceY", -1, 1, 0, 3, 7.5),
    Sketcher.Constraint("DistanceX", 0, 3, -1, 1, 7.5665),
])
pocket10 = doc.addObject("PartDesign::Pocket", "Pocket009")
body.addObject(pocket10)
pocket10.Profile = sketch20
pocket10.Length = 5.2

# Sketch on XZ plane
sketch21 = doc.addObject("Sketcher::SketchObject", "Sketch020")
body.addObject(sketch21)
sketch21.AttachmentSupport = (doc.XZ_Plane, [""])
sketch21.MapMode = "FlatFace"
sketch21.AttachmentOffset = App.Placement(App.Vector(0, 0, 14.5), App.Rotation())
add_polygon(sketch21, [(57.45, 3.1), (59.65, 3.1), (59.65, 1.6), (57.45, 1.6)])  # lines 0-3
add_polygon(sketch21, [(57.45, 13.4), (59.65, 13.4), (59.65, 11.9), (57.45, 11.9)])  # lines 4-7
sketch21.addConstraint([
    Sketcher.Constraint("Horizontal", 0),
    Sketcher.Constraint("Vertical", 1),
    Sketcher.Constraint("Horizontal", 2),
    Sketcher.Constraint("Vertical", 3),
    Sketcher.Constraint("Horizontal", 4),
    Sketcher.Constraint("Vertical", 5),
    Sketcher.Constraint("Horizontal", 6),
    Sketcher.Constraint("Vertical", 7),
    Sketcher.Constraint("Vertical", 1, 2, 4, 2),
    Sketcher.Constraint("Vertical", 3, 2, 6, 2),
    Sketcher.Constraint("Equal", 3, 5),
    Sketcher.Constraint("DistanceX", 0, 1, 0, 2, 2.2),
    Sketcher.Constraint("DistanceY", 1, 2, 1, 1, 1.5),
    Sketcher.Constraint("DistanceY", -1, 1, 0, 2, 3.1),
    Sketcher.Constraint("DistanceY", -1, 1, 4, 2, 13.4),
    Sketcher.Constraint("DistanceX", -1, 1, 0, 2, 59.65),
])
pocket11 = doc.addObject("PartDesign::Pocket", "Pocket010")
body.addObject(pocket11)
pocket11.Profile = sketch21
pocket11.Length = 10
pocket11.Reversed = True

# Sketch on YZ plane
sketch22 = doc.addObject("Sketcher::SketchObject", "Sketch021")
body.addObject(sketch22)
sketch22.AttachmentSupport = (doc.YZ_Plane, [""])
sketch22.MapMode = "FlatFace"
sketch22.AttachmentOffset = App.Placement(App.Vector(0, 0, 56.4), App.Rotation())
add_polygon(sketch22, [(-24.5, 11.9), (-24.5, 13.4), (-22.3, 13.4), (-22.3, 11.9)])  # lines 0-3
add_polygon(sketch22, [(-24.5, 1.6), (-24.5, 3.1), (-22.3, 3.1), (-22.3, 1.6)])  # lines 4-7
sketch22.addConstraint([
    Sketcher.Constraint("Vertical", 0),
    Sketcher.Constraint("Horizontal", 1),
    Sketcher.Constraint("Vertical", 2),
    Sketcher.Constraint("Horizontal", 3),
    Sketcher.Constraint("Vertical", 4),
    Sketcher.Constraint("Horizontal", 5),
    Sketcher.Constraint("Vertical", 6),
    Sketcher.Constraint("Horizontal", 7),
    Sketcher.Constraint("Vertical", 3, 2, 4, 2),
    Sketcher.Constraint("Vertical", 2, 2, 5, 2),
    Sketcher.Constraint("Equal", 2, 4),
    Sketcher.Constraint("DistanceX", 1, 1, 1, 2, 2.2),
    Sketcher.Constraint("DistanceY", 0, 1, 0, 2, 1.5),
    Sketcher.Constraint("DistanceY", -1, 1, 6, 2, 1.6),
    Sketcher.Constraint("DistanceY", 4, 2, 3, 2, 8.8),
    Sketcher.Constraint("DistanceX", 0, 2, -1, 1, 24.5),
])
pocket12 = doc.addObject("PartDesign::Pocket", "Pocket011")
body.addObject(pocket12)
pocket12.Profile = sketch22
pocket12.Length = 3
pocket12.Reversed = True

# Sketch on XY plane
sketch23 = doc.addObject("Sketcher::SketchObject", "Sketch022")
body.addObject(sketch23)
sketch23.AttachmentSupport = (doc.XY_Plane, [""])
sketch23.MapMode = "FlatFace"
add_polygon(sketch23, [(61.4, -38.35), (0, -38.3215), (0, 5), (40.2696, 5), (61.4, -4.1)])  # lines 0-4
sketch23.addConstraint([
    Sketcher.Constraint("Vertical", 1),
    Sketcher.Constraint("Horizontal", 2),
    Sketcher.Constraint("Vertical", 4),
    Sketcher.Constraint("PointOnObject", 0, 2, -2),
    Sketcher.Constraint("DistanceY", -1, 1, 1, 2, 5.0),
    Sketcher.Constraint("Angle", 3, Q("-23.2996 deg")),
    Sketcher.Constraint("Distance", 0, 61.4),
    Sketcher.Constraint("DistanceY", 4, 2, 4, 1, 34.25),
    Sketcher.Constraint("DistanceY", 3, 2, -1, 1, 4.1),
    Sketcher.Constraint("DistanceY", 1, 1, 1, 2, 43.3215),
])
pad11 = doc.addObject("PartDesign::Pad", "Pad010")
body.addObject(pad11)
pad11.Profile = sketch23
pad11.Length = 5
pad11.Reversed = True

# Sketch on XY plane
sketch24 = doc.addObject("Sketcher::SketchObject", "Sketch023")
body.addObject(sketch24)
sketch24.AttachmentSupport = (doc.XY_Plane, [""])
sketch24.MapMode = "FlatFace"
sketch24.AttachmentOffset = App.Placement(App.Vector(0, 0, 15), App.Rotation())
add_polygon(sketch24, [(39.9, 0), (39.9, -19.5), (54.1535, -19.5), (54.1535, 0)])  # lines 0-3
sketch24.addConstraint([
    Sketcher.Constraint("Vertical", 0),
    Sketcher.Constraint("Horizontal", 1),
    Sketcher.Constraint("Vertical", 2),
    Sketcher.Constraint("Horizontal", 3),
    Sketcher.Constraint("PointOnObject", 2, 2, -1),
    Sketcher.Constraint("DistanceY", 0, 2, 0, 1, 19.5),
    Sketcher.Constraint("DistanceX", -1, 1, 0, 2, 39.9),
    Sketcher.Constraint("DistanceX", 1, 1, 1, 2, 14.2535),
])
pocket13 = doc.addObject("PartDesign::Pocket", "Pocket012")
body.addObject(pocket13)
pocket13.Profile = sketch24
pocket13.Length = 15

# Sketch on XY plane
sketch25 = doc.addObject("Sketcher::SketchObject", "Sketch024")
body.addObject(sketch25)
sketch25.AttachmentSupport = (doc.XY_Plane, [""])
sketch25.MapMode = "FlatFace"
sketch25.AttachmentOffset = App.Placement(App.Vector(0, 0, -5), App.Rotation())
add_polygon(sketch25, [(24.7, -5), (36.7, -5), (36.7, -28), (24.7, -28)])  # lines 0-3
add_polygon(sketch25, [(29.7, -2.5), (31.7, -2.5), (31.7, -3.5), (29.7, -3.5)])  # lines 4-7
add_polygon(sketch25, [(29.7, -29.5), (31.7, -29.5), (31.7, -30.5), (29.7, -30.5)])  # lines 8-11
sketch25.addConstraint([
    Sketcher.Constraint("Horizontal", 0),
    Sketcher.Constraint("Vertical", 1),
    Sketcher.Constraint("Horizontal", 2),
    Sketcher.Constraint("Vertical", 3),
    Sketcher.Constraint("Horizontal", 4),
    Sketcher.Constraint("Vertical", 5),
    Sketcher.Constraint("Horizontal", 6),
    Sketcher.Constraint("Vertical", 7),
    Sketcher.Constraint("Horizontal", 8),
    Sketcher.Constraint("Vertical", 9),
    Sketcher.Constraint("Horizontal", 10),
    Sketcher.Constraint("Vertical", 11),
    Sketcher.Constraint("Vertical", 5, 2, 8, 2),
    Sketcher.Constraint("Vertical", 7, 2, 10, 2),
    Sketcher.Constraint("Equal", 7, 9),
    Sketcher.Constraint("DistanceX", 0, 1, 0, 2, 12.0),
    Sketcher.Constraint("DistanceX", 4, 1, 4, 2, 2.0),
    Sketcher.Constraint("DistanceY", 1, 2, 1, 1, 23.0),
    Sketcher.Constraint("DistanceY", 5, 2, 5, 1, 1.0),
    Sketcher.Constraint("DistanceY", 0, 2, -1, 1, 5.0),
    Sketcher.Constraint("DistanceX", 4, 2, 0, 2, 5.0),
    Sketcher.Constraint("DistanceY", 0, 2, 5, 2, 1.5),
    Sketcher.Constraint("DistanceY", 8, 2, 1, 2, 1.5),
    Sketcher.Constraint("DistanceX", -1, 1, 0, 2, 36.7),
])
pocket14 = doc.addObject("PartDesign::Pocket", "Pocket013")
body.addObject(pocket14)
pocket14.Profile = sketch25
pocket14.Length = 5
pocket14.Reversed = True

# Sketch on YZ plane
sketch26 = doc.addObject("Sketcher::SketchObject", "Sketch025")
body.addObject(sketch26)
sketch26.AttachmentSupport = (doc.YZ_Plane, [""])
sketch26.MapMode = "FlatFace"
sketch26.addGeometry(Part.Circle(App.Vector(-50.4029, 20.6857, 0), App.Vector(0, 0, 1), 2.6), False)
sketch26.addConstraint([
    Sketcher.Constraint("Diameter", 0, 5.2),
    Sketcher.Constraint("DistanceX", 0, 3, -1, 1, 50.403),
    Sketcher.Constraint("DistanceY", -1, 1, 0, 3, 20.6857),
])
pocket15 = doc.addObject("PartDesign::Pocket", "Pocket014")
body.addObject(pocket15)
pocket15.Profile = sketch26
pocket15.Length = 5
pocket15.Reversed = True

doc.recompute()
